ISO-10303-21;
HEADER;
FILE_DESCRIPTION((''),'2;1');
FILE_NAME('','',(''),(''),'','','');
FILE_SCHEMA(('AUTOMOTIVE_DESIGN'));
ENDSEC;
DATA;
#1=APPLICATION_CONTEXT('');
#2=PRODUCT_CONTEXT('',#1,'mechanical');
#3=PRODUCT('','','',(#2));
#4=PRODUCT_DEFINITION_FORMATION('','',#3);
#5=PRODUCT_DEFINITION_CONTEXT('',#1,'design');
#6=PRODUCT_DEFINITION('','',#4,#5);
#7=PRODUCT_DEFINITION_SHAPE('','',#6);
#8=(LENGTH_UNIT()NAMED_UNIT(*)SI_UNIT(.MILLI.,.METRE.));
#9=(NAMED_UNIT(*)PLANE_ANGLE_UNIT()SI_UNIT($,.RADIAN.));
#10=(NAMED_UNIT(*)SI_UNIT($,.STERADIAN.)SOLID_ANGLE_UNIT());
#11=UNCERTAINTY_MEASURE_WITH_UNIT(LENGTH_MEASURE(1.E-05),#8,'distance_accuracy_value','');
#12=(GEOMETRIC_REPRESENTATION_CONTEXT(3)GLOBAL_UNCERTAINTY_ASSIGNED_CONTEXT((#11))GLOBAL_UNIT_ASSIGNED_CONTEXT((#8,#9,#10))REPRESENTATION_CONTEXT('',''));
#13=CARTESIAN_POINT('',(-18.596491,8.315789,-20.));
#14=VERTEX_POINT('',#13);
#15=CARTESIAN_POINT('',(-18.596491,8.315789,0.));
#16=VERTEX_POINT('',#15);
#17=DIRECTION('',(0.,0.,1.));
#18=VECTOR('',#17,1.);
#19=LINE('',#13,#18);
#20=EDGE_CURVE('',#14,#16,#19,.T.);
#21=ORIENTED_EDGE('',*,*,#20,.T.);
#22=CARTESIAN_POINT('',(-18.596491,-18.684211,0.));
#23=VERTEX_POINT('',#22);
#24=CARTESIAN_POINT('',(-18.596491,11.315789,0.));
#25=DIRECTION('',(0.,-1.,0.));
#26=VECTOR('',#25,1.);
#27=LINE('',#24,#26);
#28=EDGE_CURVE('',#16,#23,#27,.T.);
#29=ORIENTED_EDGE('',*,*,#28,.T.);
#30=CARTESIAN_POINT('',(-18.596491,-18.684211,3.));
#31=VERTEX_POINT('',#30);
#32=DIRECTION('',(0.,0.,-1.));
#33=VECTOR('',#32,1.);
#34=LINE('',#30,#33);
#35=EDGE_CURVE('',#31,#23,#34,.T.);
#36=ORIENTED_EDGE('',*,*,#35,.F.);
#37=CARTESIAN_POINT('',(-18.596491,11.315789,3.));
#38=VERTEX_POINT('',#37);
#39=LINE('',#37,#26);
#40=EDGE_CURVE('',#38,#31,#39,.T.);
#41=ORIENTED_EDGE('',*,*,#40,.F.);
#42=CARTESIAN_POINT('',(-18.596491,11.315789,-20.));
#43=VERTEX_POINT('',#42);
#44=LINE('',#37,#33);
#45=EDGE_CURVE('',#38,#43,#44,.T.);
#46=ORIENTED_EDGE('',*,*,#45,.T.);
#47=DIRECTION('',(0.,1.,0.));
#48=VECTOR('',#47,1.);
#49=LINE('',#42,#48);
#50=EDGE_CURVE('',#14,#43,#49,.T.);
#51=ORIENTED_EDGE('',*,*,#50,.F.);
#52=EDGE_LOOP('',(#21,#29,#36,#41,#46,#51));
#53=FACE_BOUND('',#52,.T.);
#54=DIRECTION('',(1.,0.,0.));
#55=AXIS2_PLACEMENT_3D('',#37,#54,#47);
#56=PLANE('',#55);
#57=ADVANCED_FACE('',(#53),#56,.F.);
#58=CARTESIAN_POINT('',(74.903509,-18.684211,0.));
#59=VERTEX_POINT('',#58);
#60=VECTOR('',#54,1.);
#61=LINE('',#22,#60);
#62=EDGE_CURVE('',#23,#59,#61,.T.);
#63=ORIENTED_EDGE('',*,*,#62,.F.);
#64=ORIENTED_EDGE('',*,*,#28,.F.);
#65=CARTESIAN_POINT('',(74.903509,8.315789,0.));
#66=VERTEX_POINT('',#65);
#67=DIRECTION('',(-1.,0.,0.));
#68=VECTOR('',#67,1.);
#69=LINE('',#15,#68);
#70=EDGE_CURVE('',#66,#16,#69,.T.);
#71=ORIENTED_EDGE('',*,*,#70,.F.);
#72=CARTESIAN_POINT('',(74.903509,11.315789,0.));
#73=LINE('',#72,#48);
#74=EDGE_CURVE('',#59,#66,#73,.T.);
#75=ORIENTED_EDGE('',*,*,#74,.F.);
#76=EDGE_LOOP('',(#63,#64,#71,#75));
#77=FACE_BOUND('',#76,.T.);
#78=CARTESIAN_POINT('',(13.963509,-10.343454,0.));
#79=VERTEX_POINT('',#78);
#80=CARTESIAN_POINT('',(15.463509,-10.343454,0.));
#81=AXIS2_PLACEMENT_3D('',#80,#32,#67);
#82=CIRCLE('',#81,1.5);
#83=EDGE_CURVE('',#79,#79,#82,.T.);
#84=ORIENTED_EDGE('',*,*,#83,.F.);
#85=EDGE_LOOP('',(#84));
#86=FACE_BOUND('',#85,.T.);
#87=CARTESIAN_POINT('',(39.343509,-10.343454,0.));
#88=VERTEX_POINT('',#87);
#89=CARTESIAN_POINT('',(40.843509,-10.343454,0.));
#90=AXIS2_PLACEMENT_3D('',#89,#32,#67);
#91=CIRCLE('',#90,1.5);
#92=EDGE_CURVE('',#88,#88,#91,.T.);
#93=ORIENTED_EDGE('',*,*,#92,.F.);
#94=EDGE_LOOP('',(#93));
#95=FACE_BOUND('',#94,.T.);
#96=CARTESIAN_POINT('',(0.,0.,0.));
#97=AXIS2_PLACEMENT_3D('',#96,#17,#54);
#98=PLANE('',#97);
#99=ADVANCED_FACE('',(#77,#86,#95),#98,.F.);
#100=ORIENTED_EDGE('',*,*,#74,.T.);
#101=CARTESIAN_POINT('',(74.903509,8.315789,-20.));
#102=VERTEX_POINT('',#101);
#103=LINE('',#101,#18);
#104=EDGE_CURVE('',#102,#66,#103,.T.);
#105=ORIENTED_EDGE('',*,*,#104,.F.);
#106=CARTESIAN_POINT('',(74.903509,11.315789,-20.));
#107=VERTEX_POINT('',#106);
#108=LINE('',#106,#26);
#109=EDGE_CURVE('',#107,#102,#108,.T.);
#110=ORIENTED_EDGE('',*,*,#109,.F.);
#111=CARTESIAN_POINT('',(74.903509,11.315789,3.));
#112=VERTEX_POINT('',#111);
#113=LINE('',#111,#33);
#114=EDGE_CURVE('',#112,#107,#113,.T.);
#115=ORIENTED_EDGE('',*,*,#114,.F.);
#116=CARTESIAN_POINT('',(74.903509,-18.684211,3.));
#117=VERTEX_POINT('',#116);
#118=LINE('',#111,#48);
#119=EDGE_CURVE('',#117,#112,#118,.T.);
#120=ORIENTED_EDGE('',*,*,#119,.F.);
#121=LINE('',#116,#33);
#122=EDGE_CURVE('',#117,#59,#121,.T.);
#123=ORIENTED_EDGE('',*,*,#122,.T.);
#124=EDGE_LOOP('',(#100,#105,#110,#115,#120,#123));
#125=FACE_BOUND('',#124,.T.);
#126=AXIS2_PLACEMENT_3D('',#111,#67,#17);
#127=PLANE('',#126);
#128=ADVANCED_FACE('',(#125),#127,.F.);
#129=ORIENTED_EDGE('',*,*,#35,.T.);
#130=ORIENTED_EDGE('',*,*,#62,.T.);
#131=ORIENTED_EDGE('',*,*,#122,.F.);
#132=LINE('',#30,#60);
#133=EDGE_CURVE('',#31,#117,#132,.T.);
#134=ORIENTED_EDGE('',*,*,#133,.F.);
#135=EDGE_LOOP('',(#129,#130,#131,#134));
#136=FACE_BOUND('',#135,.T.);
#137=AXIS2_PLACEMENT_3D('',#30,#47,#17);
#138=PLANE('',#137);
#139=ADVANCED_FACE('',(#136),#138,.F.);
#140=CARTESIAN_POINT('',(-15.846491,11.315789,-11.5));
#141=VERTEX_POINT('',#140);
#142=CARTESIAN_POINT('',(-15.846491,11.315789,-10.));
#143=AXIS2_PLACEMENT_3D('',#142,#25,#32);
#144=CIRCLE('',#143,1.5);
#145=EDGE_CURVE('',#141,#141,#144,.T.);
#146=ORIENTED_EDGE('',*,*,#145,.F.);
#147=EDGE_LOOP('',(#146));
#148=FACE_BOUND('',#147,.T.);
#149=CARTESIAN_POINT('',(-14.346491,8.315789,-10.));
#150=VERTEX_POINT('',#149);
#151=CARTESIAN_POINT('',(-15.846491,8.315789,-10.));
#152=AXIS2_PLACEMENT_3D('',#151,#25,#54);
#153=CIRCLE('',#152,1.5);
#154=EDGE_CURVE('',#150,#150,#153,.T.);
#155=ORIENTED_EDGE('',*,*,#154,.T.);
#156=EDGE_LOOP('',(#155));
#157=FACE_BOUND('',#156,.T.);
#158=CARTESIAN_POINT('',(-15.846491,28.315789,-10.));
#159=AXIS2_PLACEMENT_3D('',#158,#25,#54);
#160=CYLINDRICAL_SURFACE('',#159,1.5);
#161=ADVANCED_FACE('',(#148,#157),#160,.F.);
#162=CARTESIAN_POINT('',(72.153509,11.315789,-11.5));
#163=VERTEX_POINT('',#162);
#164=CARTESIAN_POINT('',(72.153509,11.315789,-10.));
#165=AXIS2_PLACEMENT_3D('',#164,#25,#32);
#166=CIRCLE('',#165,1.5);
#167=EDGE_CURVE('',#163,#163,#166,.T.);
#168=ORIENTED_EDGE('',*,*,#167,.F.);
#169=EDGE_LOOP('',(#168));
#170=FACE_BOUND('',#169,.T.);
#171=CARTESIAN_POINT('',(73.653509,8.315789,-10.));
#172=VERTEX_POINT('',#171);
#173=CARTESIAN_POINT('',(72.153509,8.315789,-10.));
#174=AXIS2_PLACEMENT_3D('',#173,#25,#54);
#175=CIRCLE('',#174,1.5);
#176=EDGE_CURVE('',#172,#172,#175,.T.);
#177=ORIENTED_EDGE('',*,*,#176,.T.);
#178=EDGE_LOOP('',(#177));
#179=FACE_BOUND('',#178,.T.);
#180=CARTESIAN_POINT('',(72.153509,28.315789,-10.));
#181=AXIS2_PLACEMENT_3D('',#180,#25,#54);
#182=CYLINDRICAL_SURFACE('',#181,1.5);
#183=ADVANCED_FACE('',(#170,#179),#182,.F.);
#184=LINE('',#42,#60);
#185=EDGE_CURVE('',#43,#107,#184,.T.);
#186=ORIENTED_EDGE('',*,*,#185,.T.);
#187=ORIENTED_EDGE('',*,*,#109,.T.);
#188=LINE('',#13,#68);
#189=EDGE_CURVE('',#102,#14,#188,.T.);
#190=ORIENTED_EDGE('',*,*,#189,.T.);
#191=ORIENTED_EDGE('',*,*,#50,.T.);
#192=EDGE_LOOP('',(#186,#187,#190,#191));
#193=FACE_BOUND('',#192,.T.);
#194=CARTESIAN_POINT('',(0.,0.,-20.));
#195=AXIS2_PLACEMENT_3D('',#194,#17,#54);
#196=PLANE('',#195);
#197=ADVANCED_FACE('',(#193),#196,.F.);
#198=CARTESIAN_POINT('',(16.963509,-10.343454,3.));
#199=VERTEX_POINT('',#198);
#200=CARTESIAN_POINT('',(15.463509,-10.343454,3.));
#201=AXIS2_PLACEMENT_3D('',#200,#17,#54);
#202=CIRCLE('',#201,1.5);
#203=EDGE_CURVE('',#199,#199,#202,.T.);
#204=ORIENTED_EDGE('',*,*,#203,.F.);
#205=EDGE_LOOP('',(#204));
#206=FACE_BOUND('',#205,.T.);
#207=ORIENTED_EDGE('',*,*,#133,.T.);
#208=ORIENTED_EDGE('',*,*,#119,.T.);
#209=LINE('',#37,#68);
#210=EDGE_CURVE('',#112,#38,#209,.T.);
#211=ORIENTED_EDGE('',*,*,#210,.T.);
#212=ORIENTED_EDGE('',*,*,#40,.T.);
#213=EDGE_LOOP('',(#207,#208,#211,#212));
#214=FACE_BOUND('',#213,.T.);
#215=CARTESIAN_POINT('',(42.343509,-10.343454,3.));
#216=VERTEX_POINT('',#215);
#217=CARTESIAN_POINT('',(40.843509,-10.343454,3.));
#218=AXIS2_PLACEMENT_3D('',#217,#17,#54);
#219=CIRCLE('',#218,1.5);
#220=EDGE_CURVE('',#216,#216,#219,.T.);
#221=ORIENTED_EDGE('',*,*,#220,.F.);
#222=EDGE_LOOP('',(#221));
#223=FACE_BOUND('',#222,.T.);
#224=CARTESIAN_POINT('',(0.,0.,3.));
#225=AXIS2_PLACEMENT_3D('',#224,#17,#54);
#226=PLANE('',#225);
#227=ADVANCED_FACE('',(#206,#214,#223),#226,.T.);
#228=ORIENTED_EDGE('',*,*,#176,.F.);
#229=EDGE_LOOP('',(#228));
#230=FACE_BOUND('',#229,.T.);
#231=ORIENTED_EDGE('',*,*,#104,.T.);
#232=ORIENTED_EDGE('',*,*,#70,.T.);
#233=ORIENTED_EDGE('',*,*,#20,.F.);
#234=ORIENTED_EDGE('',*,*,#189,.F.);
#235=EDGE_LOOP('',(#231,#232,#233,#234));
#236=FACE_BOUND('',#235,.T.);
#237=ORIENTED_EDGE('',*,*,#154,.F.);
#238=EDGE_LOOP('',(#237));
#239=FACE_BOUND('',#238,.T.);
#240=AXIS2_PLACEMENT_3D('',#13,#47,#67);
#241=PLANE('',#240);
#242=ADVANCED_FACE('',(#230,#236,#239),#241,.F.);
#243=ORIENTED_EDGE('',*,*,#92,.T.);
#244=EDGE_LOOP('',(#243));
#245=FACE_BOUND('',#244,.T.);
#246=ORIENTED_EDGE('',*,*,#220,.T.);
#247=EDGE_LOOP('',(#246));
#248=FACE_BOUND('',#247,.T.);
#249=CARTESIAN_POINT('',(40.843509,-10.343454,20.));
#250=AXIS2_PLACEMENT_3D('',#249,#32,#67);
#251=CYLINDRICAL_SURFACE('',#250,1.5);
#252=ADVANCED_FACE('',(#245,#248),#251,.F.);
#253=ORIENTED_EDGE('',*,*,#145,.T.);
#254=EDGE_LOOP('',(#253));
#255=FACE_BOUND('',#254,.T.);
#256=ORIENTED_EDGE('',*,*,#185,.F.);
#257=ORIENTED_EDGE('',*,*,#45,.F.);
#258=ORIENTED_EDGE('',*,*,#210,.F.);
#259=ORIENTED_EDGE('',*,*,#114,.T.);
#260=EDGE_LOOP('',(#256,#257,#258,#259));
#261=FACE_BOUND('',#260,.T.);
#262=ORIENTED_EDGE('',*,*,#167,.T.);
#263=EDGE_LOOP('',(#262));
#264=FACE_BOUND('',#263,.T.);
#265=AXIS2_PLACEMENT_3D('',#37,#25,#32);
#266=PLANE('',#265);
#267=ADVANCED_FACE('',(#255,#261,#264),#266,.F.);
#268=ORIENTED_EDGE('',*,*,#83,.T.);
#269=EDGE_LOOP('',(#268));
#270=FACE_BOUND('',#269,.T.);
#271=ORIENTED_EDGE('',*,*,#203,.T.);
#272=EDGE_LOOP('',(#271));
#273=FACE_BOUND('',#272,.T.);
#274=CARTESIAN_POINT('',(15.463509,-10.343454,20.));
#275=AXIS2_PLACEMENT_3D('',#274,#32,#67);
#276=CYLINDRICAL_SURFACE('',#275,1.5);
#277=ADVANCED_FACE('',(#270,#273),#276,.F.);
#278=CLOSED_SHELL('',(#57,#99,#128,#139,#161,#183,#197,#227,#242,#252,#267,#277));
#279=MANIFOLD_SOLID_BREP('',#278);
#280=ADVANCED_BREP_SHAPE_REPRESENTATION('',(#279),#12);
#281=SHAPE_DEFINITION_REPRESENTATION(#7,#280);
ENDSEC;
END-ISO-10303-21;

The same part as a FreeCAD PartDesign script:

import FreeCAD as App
import Part
import Sketcher
Q = App.Units.Quantity

doc = App.newDocument("Part")
params = doc.addObject("Spreadsheet::Sheet", "Params")
for row, (alias, value) in enumerate([
    ("sketch1_height", "30 mm"),
    ("sketch1_width", "93.5 mm"),
    ("pad1_length", "3 mm"),
    ("sketch2_height", "3 mm"),
    ("sketch2_width", "93.5 mm"),
    ("pad2_length", "20 mm"),
    ("sketch3_diameter", "3 mm"),
    ("pocket1_length", "20 mm"),
    ("sketch4_diameter", "3 mm"),
    ("pocket2_length", "20 mm"),
], start=1):
    params.set(f"A{row}", alias)
    params.set(f"B{row}", "=" + value)
    params.setAlias(f"B{row}", alias)

body = doc.addObject("PartDesign::Body", "Body")

# Sketch on XY plane
sketch1 = doc.addObject("Sketcher::SketchObject", "Sketch")
body.addObject(sketch1)
sketch1.AttachmentSupport = (doc.XY_Plane, [""])
sketch1.MapMode = "FlatFace"
sketch1.addGeometry([
    Part.LineSegment(App.Vector(-19, 11, 0), App.Vector(-19, -19, 0)),
    Part.LineSegment(App.Vector(-19, -19, 0), App.Vector(75, -19, 0)),
    Part.LineSegment(App.Vector(75, -19, 0), App.Vector(75, 11, 0)),
    Part.LineSegment(App.Vector(75, 11, 0), App.Vector(-19, 11, 0)),
], False)
sketch1.addConstraint([
    Sketcher.Constraint("Coincident", 0, 2, 1, 1),
    Sketcher.Constraint("Coincident", 1, 2, 2, 1),
    Sketcher.Constraint("Coincident", 2, 2, 3, 1),
    Sketcher.Constraint("Coincident", 3, 2, 0, 1),
    Sketcher.Constraint("Vertical", 0),
    Sketcher.Constraint("Horizontal", 1),
    Sketcher.Constraint("Vertical", 2),
    Sketcher.Constraint("Horizontal", 3),
    Sketcher.Constraint("DistanceY", 0, 2, 0, 1, Q("30 mm")),
    Sketcher.Constraint("DistanceX", 1, 1, 1, 2, Q("93.5 mm")),
    Sketcher.Constraint("DistanceX", 0, 2, -1, 1, Q("18.596491 mm")),
    Sketcher.Constraint("DistanceY", 0, 2, -1, 1, Q("18.684211 mm")),
])
sketch1.setExpression("Constraints[8]", "Params.sketch1_height")
sketch1.setExpression("Constraints[9]", "Params.sketch1_width")
pad1 = doc.addObject("PartDesign::Pad", "Pad")
body.addObject(pad1)
pad1.Profile = sketch1
pad1.setExpression("Length", "Params.pad1_length")

# Sketch on XY plane
sketch2 = doc.addObject("Sketcher::SketchObject", "Sketch001")
body.addObject(sketch2)
sketch2.AttachmentSupport = (doc.XY_Plane, [""])
sketch2.MapMode = "FlatFace"
sketch2.addGeometry([
    Part.LineSegment(App.Vector(74.9, 11.3, 0), App.Vector(74.9, 8.3, 0)),
    Part.LineSegment(App.Vector(74.9, 8.3, 0), App.Vector(-18.6, 8.3, 0)),
    Part.LineSegment(App.Vector(-18.6, 8.3, 0), App.Vector(-18.6, 11.3, 0)),
    Part.LineSegment(App.Vector(-18.6, 11.3, 0), App.Vector(74.9, 11.3, 0)),
], False)
sketch2.addConstraint([
    Sketcher.Constraint("Coincident", 0, 2, 1, 1),
    Sketcher.Constraint("Coincident", 1, 2, 2, 1),
    Sketcher.Constraint("Coincident", 2, 2, 3, 1),
    Sketcher.Constraint("Coincident", 3, 2, 0, 1),
    Sketcher.Constraint("Vertical", 0),
    Sketcher.Constraint("Horizontal", 1),
    Sketcher.Constraint("Vertical", 2),
    Sketcher.Constraint("Horizontal", 3),
    Sketcher.Constraint("DistanceY", 0, 2, 0, 1, Q("3 mm")),
    Sketcher.Constraint("DistanceX", 1, 2, 1, 1, Q("93.5 mm")),
    Sketcher.Constraint("DistanceX", -1, 1, 0, 2, Q("74.903509 mm")),
    Sketcher.Constraint("DistanceY", -1, 1, 0, 2, Q("8.315789 mm")),
])
sketch2.setExpression("Constraints[8]", "Params.sketch2_height")
sketch2.setExpression("Constraints[9]", "Params.sketch2_width")
pad2 = doc.addObject("PartDesign::Pad", "Pad001")
body.addObject(pad2)
pad2.Profile = sketch2
pad2.setExpression("Length", "Params.pad2_length")
pad2.Reversed = True

# Sketch on XZ plane
sketch3 = doc.addObject("Sketcher::SketchObject", "Sketch002")
body.addObject(sketch3)
sketch3.AttachmentSupport = (doc.XZ_Plane, [""])
sketch3.MapMode = "FlatFace"
sketch3.AttachmentOffset = App.Placement(App.Vector(0, 0, -8.315789), App.Rotation())
sketch3.addGeometry([
    Part.Circle(App.Vector(-15.8, -10, 0), App.Vector(0, 0, 1), 1.5),
    Part.Circle(App.Vector(72.2, -10, 0), App.Vector(0, 0, 1), 1.5),
], False)
sketch3.addConstraint([
    Sketcher.Constraint("Equal", 0, 1),
    Sketcher.Constraint("Horizontal", 0, 3, 1, 3),
    Sketcher.Constraint("Diameter", 0, Q("3 mm")),
    Sketcher.Constraint("DistanceY", 0, 3, -1, 1, Q("10 mm")),
    Sketcher.Constraint("DistanceX", 0, 3, 1, 3, Q("88 mm")),
    Sketcher.Constraint("DistanceX", 0, 3, -1, 1, Q("15.846491 mm")),
])
sketch3.setExpression("Constraints[2]", "Params.sketch3_diameter")
pocket1 = doc.addObject("PartDesign::Pocket", "Pocket")
body.addObject(pocket1)
pocket1.Profile = sketch3
pocket1.setExpression("Length", "Params.pocket1_length")

# Sketch on XY plane
sketch4 = doc.addObject("Sketcher::SketchObject", "Sketch003")
body.addObject(sketch4)
sketch4.AttachmentSupport = (doc.XY_Plane, [""])
sketch4.MapMode = "FlatFace"
sketch4.addGeometry([
    Part.Circle(App.Vector(40.8, -10.3, 0), App.Vector(0, 0, 1), 1.5),
    Part.Circle(App.Vector(15.5, -10.3, 0), App.Vector(0, 0, 1), 1.5),
], False)
sketch4.addConstraint([
    Sketcher.Constraint("Equal", 0, 1),
    Sketcher.Constraint("Horizontal", 0, 3, 1, 3),
    Sketcher.Constraint("Diameter", 0, Q("3 mm")),
    Sketcher.Constraint("DistanceX", 1, 3, 0, 3, Q("25.38 mm")),
    Sketcher.Constraint("DistanceX", -1, 1, 0, 3, Q("40.843509 mm")),
    Sketcher.Constraint("DistanceY", 0, 3, -1, 1, Q("10.343454 mm")),
])
sketch4.setExpression("Constraints[2]", "Params.sketch4_diameter")
pocket2 = doc.addObject("PartDesign::Pocket", "Pocket001")
body.addObject(pocket2)
pocket2.Profile = sketch4
pocket2.setExpression("Length", "Params.pocket2_length")
pocket2.Reversed = True

doc.recompute()
